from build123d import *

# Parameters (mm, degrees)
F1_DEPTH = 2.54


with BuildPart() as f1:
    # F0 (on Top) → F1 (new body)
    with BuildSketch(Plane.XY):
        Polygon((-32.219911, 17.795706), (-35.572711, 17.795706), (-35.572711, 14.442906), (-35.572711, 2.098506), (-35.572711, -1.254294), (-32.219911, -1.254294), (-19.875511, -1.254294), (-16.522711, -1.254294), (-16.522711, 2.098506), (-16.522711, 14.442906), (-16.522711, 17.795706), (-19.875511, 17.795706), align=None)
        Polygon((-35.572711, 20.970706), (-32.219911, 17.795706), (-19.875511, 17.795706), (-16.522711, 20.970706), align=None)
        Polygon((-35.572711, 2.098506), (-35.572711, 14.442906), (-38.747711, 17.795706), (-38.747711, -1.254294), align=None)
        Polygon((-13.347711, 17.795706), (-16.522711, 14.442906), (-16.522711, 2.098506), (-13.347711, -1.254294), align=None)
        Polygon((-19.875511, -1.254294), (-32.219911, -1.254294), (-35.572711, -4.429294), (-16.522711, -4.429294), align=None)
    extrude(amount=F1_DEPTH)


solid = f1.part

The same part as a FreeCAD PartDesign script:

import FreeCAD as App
import Part
import Sketcher

V = App.Vector
Q = App.Units.Quantity


def add_polygon(sketch, points):
    """Adds a closed chain of lines whose ends are joined by coincident constraints."""
    first, n = sketch.GeometryCount, len(points)
    for a, b in zip(points, points[1:] + points[:1]):
        sketch.addGeometry(Part.LineSegment(App.Vector(*a, 0), App.Vector(*b, 0)), False)
    for i in range(n):
        sketch.addConstraint(Sketcher.Constraint("Coincident", first + i, 2, first + (i + 1) % n, 1))

doc = App.newDocument("Part")
body = doc.addObject("PartDesign::Body", "Body")

sketch1 = body.newObject("Sketcher::SketchObject", "Sketch")
sketch1.AttachmentSupport = (doc.getObject("XY_Plane"), [""])
sketch1.MapMode = "FlatFace"
add_polygon(sketch1, [(-35.6, 17.8), (-35.6, 14.4), (-38.7, 17.8), (-38.7, -1.3), (-35.6, 2.1), (-35.6, -1.3), (-32.2, -1.3), (-35.6, -4.4), (-16.5, -4.4), (-19.9, -1.3), (-16.5, -1.3), (-16.5, 2.1), (-13.3, -1.3), (-13.3, 17.8), (-16.5, 14.4), (-16.5, 17.8), (-19.9, 17.8), (-16.5, 21), (-35.6, 21), (-32.2, 17.8)])
sketch1.addConstraint(Sketcher.Constraint("Vertical", 0))
sketch1.addConstraint(Sketcher.Constraint("Vertical", 2))
sketch1.addConstraint(Sketcher.Constraint("Vertical", 4))
sketch1.addConstraint(Sketcher.Constraint("Horizontal", 5))
sketch1.addConstraint(Sketcher.Constraint("Horizontal", 7))
sketch1.addConstraint(Sketcher.Constraint("Horizontal", 9))
sketch1.addConstraint(Sketcher.Constraint("Vertical", 10))
sketch1.addConstraint(Sketcher.Constraint("Vertical", 12))
sketch1.addConstraint(Sketcher.Constraint("Vertical", 14))
sketch1.addConstraint(Sketcher.Constraint("Horizontal", 15))
sketch1.addConstraint(Sketcher.Constraint("Horizontal", 17))
sketch1.addConstraint(Sketcher.Constraint("Horizontal", 19))
sketch1.addConstraint(Sketcher.Constraint("Perpendicular", 1, 6))
sketch1.addConstraint(Sketcher.Constraint("Perpendicular", 3, 8))
sketch1.addConstraint(Sketcher.Constraint("Perpendicular", 6, 11))
sketch1.addConstraint(Sketcher.Constraint("Perpendicular", 8, 13))
sketch1.addConstraint(Sketcher.Constraint("Perpendicular", 11, 16))
sketch1.addConstraint(Sketcher.Constraint("Perpendicular", 13, 18))
sketch1.addConstraint(Sketcher.Constraint("Horizontal", 2, 2, 4, 2))
sketch1.addConstraint(Sketcher.Constraint("Horizontal", 5, 2, 8, 2))
sketch1.addConstraint(Sketcher.Constraint("Horizontal", 3, 2, 10, 2))
sketch1.addConstraint(Sketcher.Constraint("Horizontal", 9, 2, 11, 2))
sketch1.addConstraint(Sketcher.Constraint("Horizontal", 1, 2, 12, 2))
sketch1.addConstraint(Sketcher.Constraint("Horizontal", 0, 2, 13, 2))
sketch1.addConstraint(Sketcher.Constraint("Horizontal", 12, 2, 14, 2))
sketch1.addConstraint(Sketcher.Constraint("Horizontal", 15, 2, 18, 2))
sketch1.addConstraint(Sketcher.Constraint("Vertical", 0, 2, 3, 2))
sketch1.addConstraint(Sketcher.Constraint("Vertical", 4, 2, 6, 2))
sketch1.addConstraint(Sketcher.Constraint("Vertical", 7, 2, 9, 2))
sketch1.addConstraint(Sketcher.Constraint("Vertical", 10, 2, 13, 2))
sketch1.addConstraint(Sketcher.Constraint("Vertical", 8, 2, 15, 2))
sketch1.addConstraint(Sketcher.Constraint("Vertical", 14, 2, 16, 2))
sketch1.addConstraint(Sketcher.Constraint("Vertical", 6, 2, 17, 2))
sketch1.addConstraint(Sketcher.Constraint("Equal", 19, 0))
sketch1.addConstraint(Sketcher.Constraint("Equal", 17, 2))
sketch1.addConstraint(Sketcher.Constraint("DistanceX", 7, 1, 7, 2, Q("0.75 in")))
sketch1.addConstraint(Sketcher.Constraint("DistanceX", 5, 1, 5, 2, Q("0.132 in")))
sketch1.addConstraint(Sketcher.Constraint("DistanceX", 1, 2, 0, 2, Q("0.125 in")))
sketch1.addConstraint(Sketcher.Constraint("DistanceX", 0, 2, -1, 1, 35.572711))
sketch1.addConstraint(Sketcher.Constraint("DistanceY", -1, 1, 0, 2, 14.442906))
pad1 = body.newObject("PartDesign::Pad", "Pad")
pad1.Profile = sketch1
pad1.Length = Q("0.1 in")

doc.recompute()
